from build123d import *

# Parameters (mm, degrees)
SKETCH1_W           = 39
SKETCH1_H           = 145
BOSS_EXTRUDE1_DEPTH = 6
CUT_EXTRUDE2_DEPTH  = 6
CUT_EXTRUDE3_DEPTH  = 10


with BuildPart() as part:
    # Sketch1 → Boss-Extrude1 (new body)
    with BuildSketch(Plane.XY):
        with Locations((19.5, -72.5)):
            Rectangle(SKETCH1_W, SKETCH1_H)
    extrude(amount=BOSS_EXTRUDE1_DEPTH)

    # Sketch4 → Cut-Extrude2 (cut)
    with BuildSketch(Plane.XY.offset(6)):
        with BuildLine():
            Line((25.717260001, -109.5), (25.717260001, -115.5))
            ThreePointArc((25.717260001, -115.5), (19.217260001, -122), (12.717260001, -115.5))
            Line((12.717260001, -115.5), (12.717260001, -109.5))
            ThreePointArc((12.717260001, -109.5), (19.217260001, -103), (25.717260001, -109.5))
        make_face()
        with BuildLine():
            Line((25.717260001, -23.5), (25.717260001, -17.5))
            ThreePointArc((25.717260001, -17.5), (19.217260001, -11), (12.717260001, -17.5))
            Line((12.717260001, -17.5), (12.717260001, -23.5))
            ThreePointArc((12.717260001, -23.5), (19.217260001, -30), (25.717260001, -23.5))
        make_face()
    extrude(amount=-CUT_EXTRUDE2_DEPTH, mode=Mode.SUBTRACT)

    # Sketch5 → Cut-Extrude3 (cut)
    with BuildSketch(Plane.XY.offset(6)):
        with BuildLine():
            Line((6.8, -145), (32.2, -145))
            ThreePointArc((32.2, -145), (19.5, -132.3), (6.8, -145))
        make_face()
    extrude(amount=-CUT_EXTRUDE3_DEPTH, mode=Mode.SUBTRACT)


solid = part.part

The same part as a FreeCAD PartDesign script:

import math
import FreeCAD as App
import Part
import Sketcher

V = App.Vector
Q = App.Units.Quantity

doc = App.newDocument("Part")
body = doc.addObject("PartDesign::Body", "Body")

sketch1 = body.newObject("Sketcher::SketchObject", "Sketch")
sketch1.AttachmentSupport = (doc.getObject("XY_Plane"), [""])
sketch1.MapMode = "FlatFace"
sketch1.addGeometry(Part.LineSegment(V(0, 0, 0), V(0, -145, 0)), False)
sketch1.addGeometry(Part.LineSegment(V(0, -145, 0), V(39, -145, 0)), False)
sketch1.addGeometry(Part.LineSegment(V(39, -145, 0), V(39, 0, 0)), False)
sketch1.addGeometry(Part.LineSegment(V(39, 0, 0), V(0, 0, 0)), False)
sketch1.addConstraint(Sketcher.Constraint("Coincident", 0, 2, 1, 1))
sketch1.addConstraint(Sketcher.Constraint("Coincident", 1, 2, 2, 1))
sketch1.addConstraint(Sketcher.Constraint("Coincident", 2, 2, 3, 1))
sketch1.addConstraint(Sketcher.Constraint("Coincident", 3, 2, 0, 1))
sketch1.addConstraint(Sketcher.Constraint("Vertical", 0))
sketch1.addConstraint(Sketcher.Constraint("Horizontal", 1))
sketch1.addConstraint(Sketcher.Constraint("Vertical", 2))
sketch1.addConstraint(Sketcher.Constraint("Horizontal", 3))
sketch1.addConstraint(Sketcher.Constraint("Coincident", 3, 2, -1, 1))
sketch1.addConstraint(Sketcher.Constraint("DistanceX", 1, 1, 1, 2, Q("39 mm")))
sketch1.addConstraint(Sketcher.Constraint("DistanceY", 0, 2, 0, 1, Q("145 mm")))
pad1 = body.newObject("PartDesign::Pad", "Pad")
pad1.Profile = sketch1
pad1.Length = 6

sketch2 = body.newObject("Sketcher::SketchObject", "Sketch001")
sketch2.AttachmentSupport = (doc.getObject("XY_Plane"), [""])
sketch2.MapMode = "FlatFace"
sketch2.AttachmentOffset = App.Placement(V(0, 0, 6), App.Rotation())
sketch2.addGeometry(Part.LineSegment(V(26, -116, 0), V(26, -110, 0)), False)
sketch2.addGeometry(Part.ArcOfCircle(Part.Circle(V(19, -110, 0), V(0, 0, 1), 6), math.radians(0), math.radians(180)), False)
sketch2.addGeometry(Part.LineSegment(V(13, -110, 0), V(13, -116, 0)), False)
sketch2.addGeometry(Part.ArcOfCircle(Part.Circle(V(19, -116, 0), V(0, 0, 1), 6), math.radians(180), math.radians(360)), False)
sketch2.addGeometry(Part.LineSegment(V(26, -24, 0), V(26, -18, 0)), False)
sketch2.addGeometry(Part.ArcOfCircle(Part.Circle(V(19, -18, 0), V(0, 0, 1), 6), math.radians(0), math.radians(180)), False)
sketch2.addGeometry(Part.LineSegment(V(13, -18, 0), V(13, -24, 0)), False)
sketch2.addGeometry(Part.ArcOfCircle(Part.Circle(V(19, -24, 0), V(0, 0, 1), 6), math.radians(180), math.radians(360)), False)
sketch2.addConstraint(Sketcher.Constraint("Tangent", 0, 2, 1, 1))
sketch2.addConstraint(Sketcher.Constraint("Tangent", 1, 2, 2, 1))
sketch2.addConstraint(Sketcher.Constraint("Tangent", 2, 2, 3, 1))
sketch2.addConstraint(Sketcher.Constraint("Tangent", 3, 2, 0, 1))
sketch2.addConstraint(Sketcher.Constraint("Tangent", 4, 2, 5, 1))
sketch2.addConstraint(Sketcher.Constraint("Tangent", 5, 2, 6, 1))
sketch2.addConstraint(Sketcher.Constraint("Tangent", 6, 2, 7, 1))
sketch2.addConstraint(Sketcher.Constraint("Tangent", 7, 2, 4, 1))
sketch2.addConstraint(Sketcher.Constraint("Vertical", 0))
sketch2.addConstraint(Sketcher.Constraint("Vertical", 2))
sketch2.addConstraint(Sketcher.Constraint("Vertical", 4))
sketch2.addConstraint(Sketcher.Constraint("Vertical", 6))
sketch2.addConstraint(Sketcher.Constraint("Equal", 3, 5))
sketch2.addConstraint(Sketcher.Constraint("Vertical", 3, 3, 5, 3))
sketch2.addConstraint(Sketcher.Constraint("Equal", 2, 4))
sketch2.addConstraint(Sketcher.Constraint("Radius", 1, Q("6.5 mm")))
sketch2.addConstraint(Sketcher.Constraint("DistanceY", 0, 1, 0, 2, Q("6 mm")))
sketch2.addConstraint(Sketcher.Constraint("DistanceY", 1, 3, 5, 3, Q("92 mm")))
sketch2.addConstraint(Sketcher.Constraint("DistanceY", 1, 3, -1, 1, Q("109.5 mm")))
sketch2.addConstraint(Sketcher.Constraint("DistanceX", -1, 1, 1, 3, Q("19.21726 mm")))
pocket1 = body.newObject("PartDesign::Pocket", "Pocket")
pocket1.Profile = sketch2
pocket1.Length = 6

sketch3 = body.newObject("Sketcher::SketchObject", "Sketch002")
sketch3.AttachmentSupport = (doc.getObject("XY_Plane"), [""])
sketch3.MapMode = "FlatFace"
sketch3.AttachmentOffset = App.Placement(V(0, 0, 6), App.Rotation())
sketch3.addGeometry(Part.LineSegment(V(7, -145, 0), V(32, -145, 0)), False)
sketch3.addGeometry(Part.ArcOfCircle(Part.Circle(V(20, -145, 0), V(0, 0, 1), 13), math.radians(0), math.radians(180)), False)
sketch3.addConstraint(Sketcher.Constraint("Coincident", 0, 1, 1, 2))
sketch3.addConstraint(Sketcher.Constraint("Coincident", 1, 1, 0, 2))
sketch3.addConstraint(Sketcher.Constraint("Horizontal", 0))
sketch3.addConstraint(Sketcher.Constraint("Horizontal", 1, 3, 0, 1))
sketch3.addConstraint(Sketcher.Constraint("Radius", 1, Q("12.7 mm")))
sketch3.addConstraint(Sketcher.Constraint("DistanceY", 1, 3, -1, 1, Q("145 mm")))
sketch3.addConstraint(Sketcher.Constraint("DistanceX", -1, 1, 1, 3, Q("19.5 mm")))
pocket2 = body.newObject("PartDesign::Pocket", "Pocket001")
pocket2.Profile = sketch3
pocket2.Length = 10

doc.recompute()
